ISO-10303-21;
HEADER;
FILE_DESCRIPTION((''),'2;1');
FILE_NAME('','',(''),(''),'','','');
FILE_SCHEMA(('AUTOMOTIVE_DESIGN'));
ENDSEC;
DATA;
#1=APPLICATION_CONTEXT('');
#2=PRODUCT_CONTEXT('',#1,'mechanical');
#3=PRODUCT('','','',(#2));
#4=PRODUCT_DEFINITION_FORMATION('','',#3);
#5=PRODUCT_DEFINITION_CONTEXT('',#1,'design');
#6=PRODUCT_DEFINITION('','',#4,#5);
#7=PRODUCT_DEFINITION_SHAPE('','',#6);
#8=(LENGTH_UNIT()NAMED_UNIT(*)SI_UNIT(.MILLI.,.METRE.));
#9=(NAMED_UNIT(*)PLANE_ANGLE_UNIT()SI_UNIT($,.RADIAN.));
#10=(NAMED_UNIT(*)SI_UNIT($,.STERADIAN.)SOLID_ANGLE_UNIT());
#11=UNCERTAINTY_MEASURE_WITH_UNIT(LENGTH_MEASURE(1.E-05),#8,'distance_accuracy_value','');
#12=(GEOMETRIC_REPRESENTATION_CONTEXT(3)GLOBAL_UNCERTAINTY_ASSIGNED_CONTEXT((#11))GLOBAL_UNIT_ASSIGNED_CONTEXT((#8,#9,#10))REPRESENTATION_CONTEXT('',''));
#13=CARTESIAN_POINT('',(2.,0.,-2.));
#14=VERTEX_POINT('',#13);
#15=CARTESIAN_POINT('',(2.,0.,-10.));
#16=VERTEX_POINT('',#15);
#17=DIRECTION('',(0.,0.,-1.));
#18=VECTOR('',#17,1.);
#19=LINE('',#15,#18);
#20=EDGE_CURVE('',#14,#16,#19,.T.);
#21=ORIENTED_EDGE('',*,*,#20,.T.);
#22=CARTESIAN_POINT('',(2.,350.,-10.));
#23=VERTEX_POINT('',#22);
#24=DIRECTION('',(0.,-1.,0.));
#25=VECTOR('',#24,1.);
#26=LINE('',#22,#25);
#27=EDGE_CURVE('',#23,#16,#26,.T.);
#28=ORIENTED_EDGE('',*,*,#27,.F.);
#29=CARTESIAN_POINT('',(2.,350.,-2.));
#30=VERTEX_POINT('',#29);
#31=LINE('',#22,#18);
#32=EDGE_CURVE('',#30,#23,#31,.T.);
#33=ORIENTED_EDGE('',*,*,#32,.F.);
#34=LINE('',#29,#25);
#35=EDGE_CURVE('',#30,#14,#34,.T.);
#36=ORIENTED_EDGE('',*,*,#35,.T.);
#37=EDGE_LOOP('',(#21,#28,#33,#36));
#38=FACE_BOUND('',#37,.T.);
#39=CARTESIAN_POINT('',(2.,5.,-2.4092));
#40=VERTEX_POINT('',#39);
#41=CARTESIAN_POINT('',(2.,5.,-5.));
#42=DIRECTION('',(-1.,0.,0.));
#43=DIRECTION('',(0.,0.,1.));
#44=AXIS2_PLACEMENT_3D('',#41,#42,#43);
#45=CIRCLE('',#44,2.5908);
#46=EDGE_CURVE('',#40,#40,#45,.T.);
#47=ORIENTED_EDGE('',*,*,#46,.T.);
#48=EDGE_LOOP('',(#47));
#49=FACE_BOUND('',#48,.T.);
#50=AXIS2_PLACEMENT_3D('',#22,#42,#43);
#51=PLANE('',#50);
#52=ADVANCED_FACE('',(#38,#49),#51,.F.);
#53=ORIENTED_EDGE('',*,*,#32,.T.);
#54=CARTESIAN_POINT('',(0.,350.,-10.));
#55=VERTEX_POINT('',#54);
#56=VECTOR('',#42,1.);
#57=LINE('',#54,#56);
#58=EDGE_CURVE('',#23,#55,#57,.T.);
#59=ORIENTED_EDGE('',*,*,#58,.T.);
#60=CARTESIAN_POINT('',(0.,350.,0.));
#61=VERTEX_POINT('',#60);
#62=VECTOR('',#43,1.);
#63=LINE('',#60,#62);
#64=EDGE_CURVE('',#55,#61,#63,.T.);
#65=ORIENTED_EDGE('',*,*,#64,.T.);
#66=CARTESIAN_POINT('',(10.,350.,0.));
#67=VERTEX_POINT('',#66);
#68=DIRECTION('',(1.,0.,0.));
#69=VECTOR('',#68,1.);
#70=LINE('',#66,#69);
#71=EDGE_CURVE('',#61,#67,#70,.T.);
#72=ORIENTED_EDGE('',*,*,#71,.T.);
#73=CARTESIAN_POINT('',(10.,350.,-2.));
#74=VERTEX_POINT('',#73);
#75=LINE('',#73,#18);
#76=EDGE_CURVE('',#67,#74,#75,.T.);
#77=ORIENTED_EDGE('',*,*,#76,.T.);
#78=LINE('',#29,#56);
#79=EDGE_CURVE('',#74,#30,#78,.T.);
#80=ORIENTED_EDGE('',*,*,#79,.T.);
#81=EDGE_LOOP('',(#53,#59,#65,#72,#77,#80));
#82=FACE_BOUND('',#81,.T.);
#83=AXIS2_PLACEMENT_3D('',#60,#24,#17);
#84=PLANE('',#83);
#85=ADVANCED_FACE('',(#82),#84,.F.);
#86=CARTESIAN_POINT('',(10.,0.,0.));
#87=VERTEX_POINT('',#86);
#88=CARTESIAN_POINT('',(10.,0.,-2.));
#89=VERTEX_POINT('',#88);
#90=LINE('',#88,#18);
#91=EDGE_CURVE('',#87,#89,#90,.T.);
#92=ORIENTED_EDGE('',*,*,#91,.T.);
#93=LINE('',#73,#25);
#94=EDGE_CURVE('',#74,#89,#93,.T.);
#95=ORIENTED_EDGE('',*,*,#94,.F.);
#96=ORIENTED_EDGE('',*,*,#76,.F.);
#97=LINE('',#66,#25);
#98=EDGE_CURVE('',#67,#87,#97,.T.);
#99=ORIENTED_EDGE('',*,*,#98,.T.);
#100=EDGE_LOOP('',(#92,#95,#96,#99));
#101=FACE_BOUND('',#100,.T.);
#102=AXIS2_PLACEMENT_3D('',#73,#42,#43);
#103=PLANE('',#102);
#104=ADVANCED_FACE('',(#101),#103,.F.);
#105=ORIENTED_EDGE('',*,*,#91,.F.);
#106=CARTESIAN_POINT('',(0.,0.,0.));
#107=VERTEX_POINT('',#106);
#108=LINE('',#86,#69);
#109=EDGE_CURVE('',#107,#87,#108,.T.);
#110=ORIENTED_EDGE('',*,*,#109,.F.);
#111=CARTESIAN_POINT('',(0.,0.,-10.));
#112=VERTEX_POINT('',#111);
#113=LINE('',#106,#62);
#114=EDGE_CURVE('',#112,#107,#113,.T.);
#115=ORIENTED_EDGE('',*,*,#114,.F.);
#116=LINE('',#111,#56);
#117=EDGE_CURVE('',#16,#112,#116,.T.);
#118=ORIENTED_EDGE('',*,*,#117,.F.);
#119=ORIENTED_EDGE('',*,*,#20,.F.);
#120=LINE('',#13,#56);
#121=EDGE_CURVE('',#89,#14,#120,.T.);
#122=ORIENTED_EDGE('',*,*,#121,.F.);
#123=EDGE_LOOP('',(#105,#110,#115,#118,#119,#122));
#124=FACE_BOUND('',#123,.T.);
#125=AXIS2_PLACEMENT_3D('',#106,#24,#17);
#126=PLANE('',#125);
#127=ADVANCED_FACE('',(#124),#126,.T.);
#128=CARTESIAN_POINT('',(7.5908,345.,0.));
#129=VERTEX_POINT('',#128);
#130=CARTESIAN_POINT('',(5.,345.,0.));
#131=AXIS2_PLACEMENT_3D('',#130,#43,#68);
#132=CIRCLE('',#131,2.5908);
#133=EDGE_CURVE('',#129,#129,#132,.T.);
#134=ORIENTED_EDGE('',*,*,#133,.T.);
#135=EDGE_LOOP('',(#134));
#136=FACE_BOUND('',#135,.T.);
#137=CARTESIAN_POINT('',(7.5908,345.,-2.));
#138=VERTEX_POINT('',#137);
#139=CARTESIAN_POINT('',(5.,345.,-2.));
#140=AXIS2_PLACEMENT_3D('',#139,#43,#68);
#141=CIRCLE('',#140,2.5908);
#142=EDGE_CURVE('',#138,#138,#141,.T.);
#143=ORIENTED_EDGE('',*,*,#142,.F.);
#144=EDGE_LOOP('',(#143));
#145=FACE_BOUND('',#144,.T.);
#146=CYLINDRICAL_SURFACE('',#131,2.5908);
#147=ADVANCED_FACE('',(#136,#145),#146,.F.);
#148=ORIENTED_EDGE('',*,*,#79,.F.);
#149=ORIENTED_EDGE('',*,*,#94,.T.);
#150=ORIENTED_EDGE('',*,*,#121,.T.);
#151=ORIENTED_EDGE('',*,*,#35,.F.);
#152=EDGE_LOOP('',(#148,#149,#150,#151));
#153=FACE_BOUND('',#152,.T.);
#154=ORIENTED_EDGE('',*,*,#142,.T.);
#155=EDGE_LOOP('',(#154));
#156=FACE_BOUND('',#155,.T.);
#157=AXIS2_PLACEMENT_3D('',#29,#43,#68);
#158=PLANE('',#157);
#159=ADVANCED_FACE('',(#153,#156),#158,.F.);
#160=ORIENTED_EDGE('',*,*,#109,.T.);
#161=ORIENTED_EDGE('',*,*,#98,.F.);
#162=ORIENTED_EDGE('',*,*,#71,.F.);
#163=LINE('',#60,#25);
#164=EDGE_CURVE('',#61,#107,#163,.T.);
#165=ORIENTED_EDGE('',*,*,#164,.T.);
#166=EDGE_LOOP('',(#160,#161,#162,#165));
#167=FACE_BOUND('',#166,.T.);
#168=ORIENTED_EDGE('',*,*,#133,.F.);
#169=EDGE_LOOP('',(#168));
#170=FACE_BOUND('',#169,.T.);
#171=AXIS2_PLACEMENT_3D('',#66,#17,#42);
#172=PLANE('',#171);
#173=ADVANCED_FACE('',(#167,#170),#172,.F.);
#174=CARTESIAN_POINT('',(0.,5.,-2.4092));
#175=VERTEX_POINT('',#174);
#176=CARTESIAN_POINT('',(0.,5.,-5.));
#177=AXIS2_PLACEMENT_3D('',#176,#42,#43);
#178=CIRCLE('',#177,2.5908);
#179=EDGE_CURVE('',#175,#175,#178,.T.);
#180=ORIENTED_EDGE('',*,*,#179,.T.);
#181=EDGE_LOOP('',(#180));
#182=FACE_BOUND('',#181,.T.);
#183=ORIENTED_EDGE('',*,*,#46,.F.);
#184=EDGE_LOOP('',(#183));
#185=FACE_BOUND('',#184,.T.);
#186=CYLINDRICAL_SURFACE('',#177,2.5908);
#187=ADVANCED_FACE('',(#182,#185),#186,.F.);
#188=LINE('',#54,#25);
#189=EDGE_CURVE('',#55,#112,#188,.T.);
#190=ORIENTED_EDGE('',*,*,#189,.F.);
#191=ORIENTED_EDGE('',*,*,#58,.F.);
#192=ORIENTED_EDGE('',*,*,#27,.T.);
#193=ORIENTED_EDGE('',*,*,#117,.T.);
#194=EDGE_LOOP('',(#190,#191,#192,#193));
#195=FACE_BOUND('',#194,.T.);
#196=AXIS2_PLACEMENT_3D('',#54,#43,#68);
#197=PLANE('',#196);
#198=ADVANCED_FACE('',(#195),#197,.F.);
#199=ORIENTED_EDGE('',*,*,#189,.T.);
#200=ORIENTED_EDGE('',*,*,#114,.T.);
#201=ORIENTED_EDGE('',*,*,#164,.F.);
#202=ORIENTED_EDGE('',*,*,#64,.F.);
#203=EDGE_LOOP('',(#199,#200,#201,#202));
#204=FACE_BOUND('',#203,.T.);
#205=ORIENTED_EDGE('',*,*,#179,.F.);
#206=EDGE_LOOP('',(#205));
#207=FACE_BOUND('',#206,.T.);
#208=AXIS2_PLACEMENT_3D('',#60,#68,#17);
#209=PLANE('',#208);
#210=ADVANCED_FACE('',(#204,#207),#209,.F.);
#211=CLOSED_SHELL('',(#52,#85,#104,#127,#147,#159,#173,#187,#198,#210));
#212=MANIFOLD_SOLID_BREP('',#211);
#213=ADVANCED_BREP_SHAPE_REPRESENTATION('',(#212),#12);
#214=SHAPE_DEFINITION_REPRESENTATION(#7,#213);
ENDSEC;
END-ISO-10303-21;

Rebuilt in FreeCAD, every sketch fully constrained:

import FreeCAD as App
import Part
import Sketcher

doc = App.newDocument("Part")
body = doc.addObject("PartDesign::Body", "Body")

# Sketch on XZ plane
sketch1 = doc.addObject("Sketcher::SketchObject", "Sketch")
body.addObject(sketch1)
sketch1.AttachmentSupport = (doc.XZ_Plane, [""])
sketch1.MapMode = "FlatFace"
sketch1.addGeometry([
    Part.LineSegment(App.Vector(0, -10, 0), App.Vector(0, 0, 0)),  # 0
    Part.LineSegment(App.Vector(0, 0, 0), App.Vector(10, 0, 0)),  # 1
    Part.LineSegment(App.Vector(10, 0, 0), App.Vector(10, -2, 0)),  # 2
    Part.LineSegment(App.Vector(10, -2, 0), App.Vector(2, -2, 0)),  # 3
    Part.LineSegment(App.Vector(2, -2, 0), App.Vector(2, -10, 0)),  # 4
    Part.LineSegment(App.Vector(2, -10, 0), App.Vector(0, -10, 0)),  # 5
], False)
sketch1.addConstraint([
    Sketcher.Constraint("Coincident", 0, 2, 1, 1),
    Sketcher.Constraint("Coincident", 1, 2, 2, 1),
    Sketcher.Constraint("Coincident", 2, 2, 3, 1),
    Sketcher.Constraint("Coincident", 3, 2, 4, 1),
    Sketcher.Constraint("Coincident", 4, 2, 5, 1),
    Sketcher.Constraint("Coincident", 5, 2, 0, 1),
    Sketcher.Constraint("Vertical", 0),
    Sketcher.Constraint("Horizontal", 1),
    Sketcher.Constraint("Vertical", 2),
    Sketcher.Constraint("Horizontal", 3),
    Sketcher.Constraint("Vertical", 4),
    Sketcher.Constraint("Horizontal", 5),
    Sketcher.Constraint("Coincident", 0, 2, -1, 1),
    Sketcher.Constraint("Equal", 1, 0),
    Sketcher.Constraint("Equal", 5, 2),
    Sketcher.Constraint("DistanceX", 1, 1, 1, 2, 10.0),
    Sketcher.Constraint("DistanceX", 3, 2, 3, 1, 8.0),
])
pad1 = doc.addObject("PartDesign::Pad", "Pad")
body.addObject(pad1)
pad1.Profile = sketch1
pad1.Length = 350
pad1.Reversed = True

# Sketch on YZ plane
sketch2 = doc.addObject("Sketcher::SketchObject", "Sketch001")
body.addObject(sketch2)
sketch2.AttachmentSupport = (doc.YZ_Plane, [""])
sketch2.MapMode = "FlatFace"
sketch2.addGeometry(Part.Circle(App.Vector(5, -5, 0), App.Vector(0, 0, 1), 2.5908), False)
sketch2.addConstraint([
    Sketcher.Constraint("DistanceX", -1, 1, 0, 3, 5.0),
    Sketcher.Constraint("DistanceY", 0, 3, -1, 1, 5.0),
    Sketcher.Constraint("Diameter", 0, 5.1816),
])
doc.recompute()
hole = doc.addObject("PartDesign::Hole", "Hole")
body.addObject(hole)
hole.Profile = sketch2
hole.ThreadType = "None"
hole.Diameter = 5.1816
hole.DepthType = "ThroughAll"
hole.Reversed = True

# Sketch on XY plane
sketch3 = doc.addObject("Sketcher::SketchObject", "Sketch002")
body.addObject(sketch3)
sketch3.AttachmentSupport = (doc.XY_Plane, [""])
sketch3.MapMode = "FlatFace"
sketch3.addGeometry(Part.Circle(App.Vector(5, 345, 0), App.Vector(0, 0, 1), 2.5908), False)
sketch3.addConstraint([
    Sketcher.Constraint("DistanceX", -1, 1, 0, 3, 5.0),
    Sketcher.Constraint("DistanceY", -1, 1, 0, 3, 345.0),
    Sketcher.Constraint("Diameter", 0, 5.1816),
])
doc.recompute()
hole2 = doc.addObject("PartDesign::Hole", "Hole001")
body.addObject(hole2)
hole2.Profile = sketch3
hole2.ThreadType = "None"
hole2.Diameter = 5.1816
hole2.DepthType = "ThroughAll"

doc.recompute()
